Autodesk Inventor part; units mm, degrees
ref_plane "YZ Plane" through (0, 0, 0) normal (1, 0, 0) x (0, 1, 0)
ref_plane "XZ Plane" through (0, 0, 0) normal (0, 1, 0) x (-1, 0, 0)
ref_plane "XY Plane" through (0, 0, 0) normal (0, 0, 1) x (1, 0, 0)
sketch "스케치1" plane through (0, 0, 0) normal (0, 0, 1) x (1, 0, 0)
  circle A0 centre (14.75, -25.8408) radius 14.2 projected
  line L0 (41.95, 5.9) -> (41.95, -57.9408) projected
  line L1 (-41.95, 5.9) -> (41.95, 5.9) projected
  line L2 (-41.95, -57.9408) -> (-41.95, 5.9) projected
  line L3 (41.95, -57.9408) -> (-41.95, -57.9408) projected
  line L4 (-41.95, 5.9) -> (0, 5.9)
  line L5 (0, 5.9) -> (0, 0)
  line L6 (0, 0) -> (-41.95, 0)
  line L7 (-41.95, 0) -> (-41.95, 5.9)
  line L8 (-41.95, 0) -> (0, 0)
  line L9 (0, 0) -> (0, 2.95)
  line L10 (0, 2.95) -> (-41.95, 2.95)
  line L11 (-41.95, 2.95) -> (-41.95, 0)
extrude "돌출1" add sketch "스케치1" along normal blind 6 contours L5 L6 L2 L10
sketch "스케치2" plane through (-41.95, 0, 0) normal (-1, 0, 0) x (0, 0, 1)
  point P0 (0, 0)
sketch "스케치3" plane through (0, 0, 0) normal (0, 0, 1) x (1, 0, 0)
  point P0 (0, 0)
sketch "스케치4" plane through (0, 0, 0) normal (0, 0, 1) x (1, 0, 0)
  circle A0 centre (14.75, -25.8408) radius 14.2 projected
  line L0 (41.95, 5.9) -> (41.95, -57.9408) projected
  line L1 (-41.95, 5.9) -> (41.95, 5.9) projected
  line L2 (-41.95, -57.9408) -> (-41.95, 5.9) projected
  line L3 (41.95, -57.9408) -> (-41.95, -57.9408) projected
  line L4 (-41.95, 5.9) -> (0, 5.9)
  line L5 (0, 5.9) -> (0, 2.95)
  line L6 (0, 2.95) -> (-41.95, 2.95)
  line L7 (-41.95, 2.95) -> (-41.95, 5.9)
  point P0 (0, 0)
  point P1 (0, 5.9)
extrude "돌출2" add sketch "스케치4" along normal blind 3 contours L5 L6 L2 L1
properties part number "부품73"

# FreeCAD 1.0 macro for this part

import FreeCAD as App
import Part
import Sketcher

V = App.Vector


def add_polygon(sketch, points):
    """Adds a closed chain of lines whose ends are joined by coincident constraints."""
    first, n = sketch.GeometryCount, len(points)
    for a, b in zip(points, points[1:] + points[:1]):
        sketch.addGeometry(Part.LineSegment(App.Vector(*a, 0), App.Vector(*b, 0)), False)
    for i in range(n):
        sketch.addConstraint(Sketcher.Constraint("Coincident", first + i, 2, first + (i + 1) % n, 1))

doc = App.newDocument("Part")
body = doc.addObject("PartDesign::Body", "Body")

# Sketch on XY plane
sketch1 = body.newObject("Sketcher::SketchObject", "Sketch")
sketch1.AttachmentSupport = (doc.getObject("XY_Plane"), [""])
sketch1.MapMode = "FlatFace"
add_polygon(sketch1, [(0, 0), (0, 3), (-42, 3), (-42, 0)])  # lines 0-3
sketch1.addConstraint([
    Sketcher.Constraint("Vertical", 0),
    Sketcher.Constraint("Horizontal", 1),
    Sketcher.Constraint("Vertical", 2),
    Sketcher.Constraint("Horizontal", 3),
    Sketcher.Constraint("Coincident", 3, 2, -1, 1),
    Sketcher.Constraint("DistanceX", 1, 2, 1, 1, 41.95),
    Sketcher.Constraint("DistanceY", 0, 1, 0, 2, 2.95),
])
pad1 = body.newObject("PartDesign::Pad", "Pad")
pad1.Profile = sketch1
pad1.Length = 6

# Sketch on XY plane
sketch2 = body.newObject("Sketcher::SketchObject", "Sketch001")
sketch2.AttachmentSupport = (doc.getObject("XY_Plane"), [""])
sketch2.MapMode = "FlatFace"
add_polygon(sketch2, [(0, 3), (0, 5.9), (-42, 5.9), (-42, 3)])  # lines 0-3
sketch2.addConstraint([
    Sketcher.Constraint("Vertical", 0),
    Sketcher.Constraint("Horizontal", 1),
    Sketcher.Constraint("Vertical", 2),
    Sketcher.Constraint("Horizontal", 3),
    Sketcher.Constraint("PointOnObject", 0, 2, -2),
    Sketcher.Constraint("DistanceX", 1, 2, 1, 1, 41.95),
    Sketcher.Constraint("DistanceY", 0, 1, 0, 2, 2.95),
    Sketcher.Constraint("DistanceY", -1, 1, 0, 2, 5.9),
])
pad2 = body.newObject("PartDesign::Pad", "Pad001")
pad2.Profile = sketch2
pad2.Length = 3

doc.recompute()
